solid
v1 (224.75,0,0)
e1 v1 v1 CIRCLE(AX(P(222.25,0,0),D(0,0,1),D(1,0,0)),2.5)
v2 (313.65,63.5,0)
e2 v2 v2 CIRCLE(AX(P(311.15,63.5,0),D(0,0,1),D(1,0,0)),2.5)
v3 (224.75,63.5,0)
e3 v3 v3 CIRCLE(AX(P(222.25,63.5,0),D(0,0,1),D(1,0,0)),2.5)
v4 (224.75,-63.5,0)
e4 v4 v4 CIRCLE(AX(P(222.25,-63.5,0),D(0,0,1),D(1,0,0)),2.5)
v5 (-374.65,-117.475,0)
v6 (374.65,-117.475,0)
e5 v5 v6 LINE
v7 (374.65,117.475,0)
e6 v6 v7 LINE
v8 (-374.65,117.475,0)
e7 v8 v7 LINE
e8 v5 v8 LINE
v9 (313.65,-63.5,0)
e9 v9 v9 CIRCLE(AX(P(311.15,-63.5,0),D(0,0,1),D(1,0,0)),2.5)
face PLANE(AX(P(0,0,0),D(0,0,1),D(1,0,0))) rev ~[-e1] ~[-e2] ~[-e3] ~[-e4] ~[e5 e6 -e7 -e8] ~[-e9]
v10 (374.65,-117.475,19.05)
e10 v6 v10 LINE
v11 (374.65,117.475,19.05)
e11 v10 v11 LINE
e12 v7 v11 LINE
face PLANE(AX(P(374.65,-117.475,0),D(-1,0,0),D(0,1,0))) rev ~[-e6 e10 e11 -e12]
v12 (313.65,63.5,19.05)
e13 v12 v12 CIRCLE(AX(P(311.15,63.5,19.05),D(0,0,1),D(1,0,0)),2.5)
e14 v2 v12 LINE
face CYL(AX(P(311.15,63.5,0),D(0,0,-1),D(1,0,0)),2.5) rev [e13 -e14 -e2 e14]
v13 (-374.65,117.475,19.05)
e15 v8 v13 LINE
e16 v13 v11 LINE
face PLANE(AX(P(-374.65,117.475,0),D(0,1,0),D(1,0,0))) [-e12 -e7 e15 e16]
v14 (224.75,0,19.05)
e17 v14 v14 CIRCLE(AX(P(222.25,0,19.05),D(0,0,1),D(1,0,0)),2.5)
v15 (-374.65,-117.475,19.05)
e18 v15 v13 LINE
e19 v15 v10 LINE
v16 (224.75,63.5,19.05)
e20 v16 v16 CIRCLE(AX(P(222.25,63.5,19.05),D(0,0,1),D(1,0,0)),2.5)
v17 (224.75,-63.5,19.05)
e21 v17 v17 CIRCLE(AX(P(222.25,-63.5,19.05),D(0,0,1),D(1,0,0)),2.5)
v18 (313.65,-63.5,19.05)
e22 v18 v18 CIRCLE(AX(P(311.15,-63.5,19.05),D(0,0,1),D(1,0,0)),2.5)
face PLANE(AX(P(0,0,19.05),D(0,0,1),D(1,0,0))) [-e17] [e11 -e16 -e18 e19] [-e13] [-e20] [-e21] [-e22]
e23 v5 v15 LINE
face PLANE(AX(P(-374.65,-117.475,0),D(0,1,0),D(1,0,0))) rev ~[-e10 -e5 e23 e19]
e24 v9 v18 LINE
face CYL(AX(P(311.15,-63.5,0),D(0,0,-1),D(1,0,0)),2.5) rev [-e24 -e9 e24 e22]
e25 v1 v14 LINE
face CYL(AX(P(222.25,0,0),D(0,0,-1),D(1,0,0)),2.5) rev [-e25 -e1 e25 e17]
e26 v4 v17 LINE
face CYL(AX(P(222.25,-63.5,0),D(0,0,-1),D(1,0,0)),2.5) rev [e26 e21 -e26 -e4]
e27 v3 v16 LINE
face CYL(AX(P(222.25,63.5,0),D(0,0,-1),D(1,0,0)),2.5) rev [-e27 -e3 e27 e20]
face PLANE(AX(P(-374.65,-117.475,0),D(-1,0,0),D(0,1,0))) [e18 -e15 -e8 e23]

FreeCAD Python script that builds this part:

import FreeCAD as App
import Part
import Sketcher
from FreeCAD import Vector
Q = App.Units.Quantity

doc = App.newDocument("Part")
params = doc.addObject("Spreadsheet::Sheet", "Params")
for row, (alias, value) in enumerate([
    ("sketch1_width", "29.5 in"),
    ("sketch1_height", "9.25 in"),
    ("pad1_length", "0.75 in"),
], start=1):
    params.set(f"A{row}", alias)
    params.set(f"B{row}", "=" + value)
    params.setAlias(f"B{row}", alias)

body = doc.addObject("PartDesign::Body", "Body")

# Sketch on XY plane
sketch1 = body.newObject("Sketcher::SketchObject", "Sketch")
sketch1.AttachmentSupport = (doc.getObject("XY_Plane"), [""])
sketch1.MapMode = "FlatFace"
sketch1.addGeometry([
    Part.LineSegment(Vector(-374.65, 117.475, 0), Vector(-374.65, -117.475, 0)),  # 0
    Part.LineSegment(Vector(-374.65, -117.475, 0), Vector(374.65, -117.475, 0)),  # 1
    Part.LineSegment(Vector(374.65, -117.475, 0), Vector(374.65, 117.475, 0)),  # 2
    Part.LineSegment(Vector(374.65, 117.475, 0), Vector(-374.65, 117.475, 0)),  # 3
    Part.Circle(Vector(222.25, -63.5, 0), Vector(0, 0, 1), 2.5),  # 4
    Part.Circle(Vector(311.15, -63.5, 0), Vector(0, 0, 1), 2.5),  # 5
    Part.Circle(Vector(222.25, 0, 0), Vector(0, 0, 1), 2.5),  # 6
    Part.Circle(Vector(222.25, 63.5, 0), Vector(0, 0, 1), 2.5),  # 7
    Part.Circle(Vector(311.15, 63.5, 0), Vector(0, 0, 1), 2.5),  # 8
], False)
sketch1.addConstraint([
    Sketcher.Constraint("Coincident", 0, 2, 1, 1),
    Sketcher.Constraint("Coincident", 1, 2, 2, 1),
    Sketcher.Constraint("Coincident", 2, 2, 3, 1),
    Sketcher.Constraint("Coincident", 3, 2, 0, 1),
    Sketcher.Constraint("Vertical", 0),
    Sketcher.Constraint("Horizontal", 1),
    Sketcher.Constraint("Vertical", 2),
    Sketcher.Constraint("Horizontal", 3),
    Sketcher.Constraint("Equal", 4, 5),
    Sketcher.Constraint("Equal", 5, 6),
    Sketcher.Constraint("Equal", 6, 7),
    Sketcher.Constraint("Equal", 7, 8),
    Sketcher.Constraint("Symmetric", 0, 2, 2, 2, -1, 1),
    Sketcher.Constraint("Symmetric", 4, 3, 7, 3, -1),
    Sketcher.Constraint("Symmetric", 5, 3, 8, 3, -1),
    Sketcher.Constraint("PointOnObject", 6, 3, -1),
    Sketcher.Constraint("Horizontal", 4, 3, 5, 3),
    Sketcher.Constraint("Vertical", 4, 3, 6, 3),
    Sketcher.Constraint("DistanceX", 1, 1, 1, 2, Q("29.5 in")),
    Sketcher.Constraint("DistanceY", 4, 3, 7, 3, Q("5 in")),
    Sketcher.Constraint("DistanceX", 0, 2, 5, 3, Q("27 in")),
    Sketcher.Constraint("DistanceX", 4, 3, 1, 2, Q("6 in")),
    Sketcher.Constraint("DistanceY", 0, 2, 0, 1, Q("9.25 in")),
    Sketcher.Constraint("Diameter", 4, Q("5 mm")),
])
sketch1.setExpression("Constraints[18]", "Params.sketch1_width")
sketch1.setExpression("Constraints[22]", "Params.sketch1_height")
pad1 = body.newObject("PartDesign::Pad", "Pad")
pad1.Profile = sketch1
pad1.setExpression("Length", "Params.pad1_length")

doc.recompute()
